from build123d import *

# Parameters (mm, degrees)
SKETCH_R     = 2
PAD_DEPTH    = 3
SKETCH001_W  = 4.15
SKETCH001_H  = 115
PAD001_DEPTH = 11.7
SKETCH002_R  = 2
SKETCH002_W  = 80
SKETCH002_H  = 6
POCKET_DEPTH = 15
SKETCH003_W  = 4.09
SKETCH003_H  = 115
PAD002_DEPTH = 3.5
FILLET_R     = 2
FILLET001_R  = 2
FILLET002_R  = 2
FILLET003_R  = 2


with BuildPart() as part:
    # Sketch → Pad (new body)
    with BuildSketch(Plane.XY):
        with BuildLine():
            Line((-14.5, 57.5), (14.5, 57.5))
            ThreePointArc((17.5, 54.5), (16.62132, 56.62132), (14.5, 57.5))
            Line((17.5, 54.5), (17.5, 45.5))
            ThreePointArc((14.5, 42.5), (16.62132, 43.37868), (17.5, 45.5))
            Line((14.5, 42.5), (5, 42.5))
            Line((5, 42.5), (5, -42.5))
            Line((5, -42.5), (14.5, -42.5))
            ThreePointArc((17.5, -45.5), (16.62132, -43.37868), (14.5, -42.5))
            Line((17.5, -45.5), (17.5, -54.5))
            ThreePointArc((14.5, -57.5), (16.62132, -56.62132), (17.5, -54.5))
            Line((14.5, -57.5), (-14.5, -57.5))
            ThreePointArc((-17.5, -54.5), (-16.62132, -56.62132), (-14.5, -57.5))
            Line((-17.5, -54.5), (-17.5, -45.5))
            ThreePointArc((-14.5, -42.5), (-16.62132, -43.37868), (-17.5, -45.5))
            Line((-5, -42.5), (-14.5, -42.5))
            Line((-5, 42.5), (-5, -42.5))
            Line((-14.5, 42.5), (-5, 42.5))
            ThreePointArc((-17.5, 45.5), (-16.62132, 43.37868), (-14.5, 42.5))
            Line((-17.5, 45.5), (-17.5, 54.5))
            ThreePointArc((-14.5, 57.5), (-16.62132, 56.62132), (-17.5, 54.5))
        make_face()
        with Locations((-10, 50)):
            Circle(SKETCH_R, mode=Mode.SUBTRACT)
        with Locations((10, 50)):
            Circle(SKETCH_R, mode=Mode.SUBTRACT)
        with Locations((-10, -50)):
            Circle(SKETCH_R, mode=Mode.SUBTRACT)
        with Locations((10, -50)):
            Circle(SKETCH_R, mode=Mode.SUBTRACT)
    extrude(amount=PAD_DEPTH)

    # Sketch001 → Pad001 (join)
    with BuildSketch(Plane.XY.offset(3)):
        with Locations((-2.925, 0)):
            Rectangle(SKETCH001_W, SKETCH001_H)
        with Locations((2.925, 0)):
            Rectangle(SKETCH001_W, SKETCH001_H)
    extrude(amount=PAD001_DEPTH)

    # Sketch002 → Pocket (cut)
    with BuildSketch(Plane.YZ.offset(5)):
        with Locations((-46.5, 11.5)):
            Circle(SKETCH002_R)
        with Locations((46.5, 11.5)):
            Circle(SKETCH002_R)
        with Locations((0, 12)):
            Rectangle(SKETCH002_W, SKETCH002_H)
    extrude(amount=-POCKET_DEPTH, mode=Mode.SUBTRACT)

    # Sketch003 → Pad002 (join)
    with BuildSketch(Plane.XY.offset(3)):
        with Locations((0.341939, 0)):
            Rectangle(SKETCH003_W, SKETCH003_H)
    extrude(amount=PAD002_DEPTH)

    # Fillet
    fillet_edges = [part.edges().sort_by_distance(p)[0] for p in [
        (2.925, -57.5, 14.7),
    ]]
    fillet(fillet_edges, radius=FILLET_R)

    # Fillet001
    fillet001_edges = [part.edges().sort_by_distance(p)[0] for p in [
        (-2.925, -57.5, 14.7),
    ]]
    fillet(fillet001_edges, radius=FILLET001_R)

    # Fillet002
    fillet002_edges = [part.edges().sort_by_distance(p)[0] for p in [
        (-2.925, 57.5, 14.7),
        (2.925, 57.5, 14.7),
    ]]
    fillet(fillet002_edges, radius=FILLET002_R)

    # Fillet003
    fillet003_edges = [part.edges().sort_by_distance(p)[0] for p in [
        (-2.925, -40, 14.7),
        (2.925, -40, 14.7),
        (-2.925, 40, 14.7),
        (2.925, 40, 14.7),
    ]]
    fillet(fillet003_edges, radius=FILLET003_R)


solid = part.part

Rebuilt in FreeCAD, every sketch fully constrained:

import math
import FreeCAD as App
import Part
import Sketcher

V = App.Vector


def edges_at(feature, points):
    """Names of the edges that pass closest to the given points."""
    edges = feature.Shape.Edges
    near = lambda p: min(range(len(edges)), key=lambda i: edges[i].distToShape(Part.Vertex(*p))[0])
    return sorted({f"Edge{near(p) + 1}" for p in points})

doc = App.newDocument("Part")
params = doc.addObject("Spreadsheet::Sheet", "Params")
for row, (alias, value) in enumerate([
    ("sketch1_diameter", "4 mm"),
    ("sketch1_radius", "3.000001 mm"),
    ("sketch1_width", "29 mm"),
    ("sketch1_height", "9 mm"),
    ("sketch1_height2", "85 mm"),
    ("pad1_length", "3 mm"),
    ("sketch2_height", "115 mm"),
    ("sketch2_width", "4.15 mm"),
    ("pad2_length", "11.7 mm"),
    ("sketch3_diameter", "4 mm"),
    ("sketch3_width", "80 mm"),
    ("sketch3_height", "6 mm"),
    ("pocket1_length", "15 mm"),
    ("sketch4_height", "115 mm"),
    ("sketch4_width", "4.09 mm"),
    ("pad3_length", "3.5 mm"),
    ("fillet_radius", "2 mm"),
    ("fillet2_radius", "2 mm"),
    ("fillet3_radius", "2 mm"),
    ("fillet4_radius", "2 mm"),
], start=1):
    params.set(f"A{row}", alias)
    params.set(f"B{row}", "=" + value)
    params.setAlias(f"B{row}", alias)

body = doc.addObject("PartDesign::Body", "Body")

sketch1 = body.newObject("Sketcher::SketchObject", "Sketch")
sketch1.AttachmentSupport = (doc.getObject("XY_Plane"), [""])
sketch1.MapMode = "FlatFace"
sketch1.addGeometry(Part.LineSegment(V(14.5, 57.5, 0), V(-14.5, 57.5, 0)), False)
sketch1.addGeometry(Part.ArcOfCircle(Part.Circle(V(-14.5, 54.5, 0), V(0, 0, 1), 3), math.radians(90), math.radians(180)), False)
sketch1.addGeometry(Part.LineSegment(V(-17.5, 54.5, 0), V(-17.5, 45.5, 0)), False)
sketch1.addGeometry(Part.ArcOfCircle(Part.Circle(V(-14.5, 45.5, 0), V(0, 0, 1), 3), math.radians(-180), math.radians(-90)), False)
sketch1.addGeometry(Part.LineSegment(V(-14.5, 42.5, 0), V(-5, 42.5, 0)), False)
sketch1.addGeometry(Part.LineSegment(V(-5, 42.5, 0), V(-5, -42.5, 0)), False)
sketch1.addGeometry(Part.LineSegment(V(-5, -42.5, 0), V(-14.5, -42.5, 0)), False)
sketch1.addGeometry(Part.ArcOfCircle(Part.Circle(V(-14.5, -45.5, 0), V(0, 0, 1), 3), math.radians(90), math.radians(180)), False)
sketch1.addGeometry(Part.LineSegment(V(-17.5, -45.5, 0), V(-17.5, -54.5, 0)), False)
sketch1.addGeometry(Part.ArcOfCircle(Part.Circle(V(-14.5, -54.5, 0), V(0, 0, 1), 3), math.radians(-180), math.radians(-90)), False)
sketch1.addGeometry(Part.LineSegment(V(-14.5, -57.5, 0), V(14.5, -57.5, 0)), False)
sketch1.addGeometry(Part.ArcOfCircle(Part.Circle(V(14.5, -54.5, 0), V(0, 0, 1), 3), math.radians(-90), math.radians(0)), False)
sketch1.addGeometry(Part.LineSegment(V(17.5, -54.5, 0), V(17.5, -45.5, 0)), False)
sketch1.addGeometry(Part.ArcOfCircle(Part.Circle(V(14.5, -45.5, 0), V(0, 0, 1), 3), math.radians(0), math.radians(90)), False)
sketch1.addGeometry(Part.LineSegment(V(14.5, -42.5, 0), V(5, -42.5, 0)), False)
sketch1.addGeometry(Part.LineSegment(V(5, -42.5, 0), V(5, 42.5, 0)), False)
sketch1.addGeometry(Part.LineSegment(V(5, 42.5, 0), V(14.5, 42.5, 0)), False)
sketch1.addGeometry(Part.ArcOfCircle(Part.Circle(V(14.5, 45.5, 0), V(0, 0, 1), 3), math.radians(-90), math.radians(0)), False)
sketch1.addGeometry(Part.LineSegment(V(17.5, 45.5, 0), V(17.5, 54.5, 0)), False)
sketch1.addGeometry(Part.ArcOfCircle(Part.Circle(V(14.5, 54.5, 0), V(0, 0, 1), 3), math.radians(0), math.radians(90)), False)
sketch1.addGeometry(Part.Circle(V(10, -50, 0), V(0, 0, 1), 2), False)
sketch1.addGeometry(Part.Circle(V(-10, -50, 0), V(0, 0, 1), 2), False)
sketch1.addGeometry(Part.Circle(V(10, 50, 0), V(0, 0, 1), 2), False)
sketch1.addGeometry(Part.Circle(V(-10, 50, 0), V(0, 0, 1), 2), False)
sketch1.addConstraint(Sketcher.Constraint("Tangent", 0, 2, 1, 1))
sketch1.addConstraint(Sketcher.Constraint("Tangent", 1, 2, 2, 1))
sketch1.addConstraint(Sketcher.Constraint("Tangent", 2, 2, 3, 1))
sketch1.addConstraint(Sketcher.Constraint("Tangent", 3, 2, 4, 1))
sketch1.addConstraint(Sketcher.Constraint("Coincident", 4, 2, 5, 1))
sketch1.addConstraint(Sketcher.Constraint("Coincident", 5, 2, 6, 1))
sketch1.addConstraint(Sketcher.Constraint("Tangent", 6, 2, 7, 1))
sketch1.addConstraint(Sketcher.Constraint("Tangent", 7, 2, 8, 1))
sketch1.addConstraint(Sketcher.Constraint("Tangent", 8, 2, 9, 1))
sketch1.addConstraint(Sketcher.Constraint("Tangent", 9, 2, 10, 1))
sketch1.addConstraint(Sketcher.Constraint("Tangent", 10, 2, 11, 1))
sketch1.addConstraint(Sketcher.Constraint("Tangent", 11, 2, 12, 1))
sketch1.addConstraint(Sketcher.Constraint("Tangent", 12, 2, 13, 1))
sketch1.addConstraint(Sketcher.Constraint("Tangent", 13, 2, 14, 1))
sketch1.addConstraint(Sketcher.Constraint("Coincident", 14, 2, 15, 1))
sketch1.addConstraint(Sketcher.Constraint("Coincident", 15, 2, 16, 1))
sketch1.addConstraint(Sketcher.Constraint("Tangent", 16, 2, 17, 1))
sketch1.addConstraint(Sketcher.Constraint("Tangent", 17, 2, 18, 1))
sketch1.addConstraint(Sketcher.Constraint("Tangent", 18, 2, 19, 1))
sketch1.addConstraint(Sketcher.Constraint("Tangent", 19, 2, 0, 1))
sketch1.addConstraint(Sketcher.Constraint("Horizontal", 0))
sketch1.addConstraint(Sketcher.Constraint("Vertical", 2))
sketch1.addConstraint(Sketcher.Constraint("Horizontal", 4))
sketch1.addConstraint(Sketcher.Constraint("Vertical", 5))
sketch1.addConstraint(Sketcher.Constraint("Horizontal", 6))
sketch1.addConstraint(Sketcher.Constraint("Vertical", 8))
sketch1.addConstraint(Sketcher.Constraint("Horizontal", 10))
sketch1.addConstraint(Sketcher.Constraint("Vertical", 12))
sketch1.addConstraint(Sketcher.Constraint("Horizontal", 14))
sketch1.addConstraint(Sketcher.Constraint("Vertical", 15))
sketch1.addConstraint(Sketcher.Constraint("Horizontal", 16))
sketch1.addConstraint(Sketcher.Constraint("Vertical", 18))
sketch1.addConstraint(Sketcher.Constraint("Equal", 1, 3))
sketch1.addConstraint(Sketcher.Constraint("Equal", 3, 7))
sketch1.addConstraint(Sketcher.Constraint("Equal", 7, 9))
sketch1.addConstraint(Sketcher.Constraint("Equal", 9, 11))
sketch1.addConstraint(Sketcher.Constraint("Equal", 11, 13))
sketch1.addConstraint(Sketcher.Constraint("Equal", 13, 17))
sketch1.addConstraint(Sketcher.Constraint("Equal", 17, 19))
sketch1.addConstraint(Sketcher.Constraint("Equal", 20, 21))
sketch1.addConstraint(Sketcher.Constraint("Equal", 21, 22))
sketch1.addConstraint(Sketcher.Constraint("Equal", 22, 23))
sketch1.addConstraint(Sketcher.Constraint("Symmetric", 1, 3, 11, 3, -1, 1))
sketch1.addConstraint(Sketcher.Constraint("Symmetric", 7, 3, 17, 3, -1, 1))
sketch1.addConstraint(Sketcher.Constraint("Symmetric", 21, 3, 22, 3, -1, 1))
sketch1.addConstraint(Sketcher.Constraint("Symmetric", 20, 3, 23, 3, -1, 1))
sketch1.addConstraint(Sketcher.Constraint("Symmetric", 4, 2, 14, 2, -1, 1))
sketch1.addConstraint(Sketcher.Constraint("Symmetric", 7, 3, 13, 3, -2))
sketch1.addConstraint(Sketcher.Constraint("Symmetric", 20, 3, 21, 3, -2))
sketch1.addConstraint(Sketcher.Constraint("Diameter", 20, 4.0))
sketch1.addConstraint(Sketcher.Constraint("Radius", 1, 3.000001))
sketch1.addConstraint(Sketcher.Constraint("DistanceX", 0, 2, 0, 1, 29.0))
sketch1.addConstraint(Sketcher.Constraint("DistanceY", 2, 2, 2, 1, 9.0))
sketch1.addConstraint(Sketcher.Constraint("DistanceY", 5, 2, 5, 1, 85.0))
sketch1.addConstraint(Sketcher.Constraint("DistanceX", 4, 1, 4, 2, 9.5))
sketch1.addConstraint(Sketcher.Constraint("DistanceX", -1, 1, 20, 3, 10.0))
sketch1.addConstraint(Sketcher.Constraint("DistanceY", 20, 3, -1, 1, 50.0))
sketch1.setExpression("Constraints[49]", "Params.sketch1_diameter")
sketch1.setExpression("Constraints[50]", "Params.sketch1_radius")
sketch1.setExpression("Constraints[51]", "Params.sketch1_width")
sketch1.setExpression("Constraints[52]", "Params.sketch1_height")
sketch1.setExpression("Constraints[53]", "Params.sketch1_height2")
pad1 = body.newObject("PartDesign::Pad", "Pad")
pad1.Profile = sketch1
pad1.setExpression("Length", "Params.pad1_length")

sketch2 = body.newObject("Sketcher::SketchObject", "Sketch001")
sketch2.AttachmentSupport = (doc.getObject("XY_Plane"), [""])
sketch2.MapMode = "FlatFace"
sketch2.AttachmentOffset = App.Placement(V(0, 0, 3), App.Rotation())
sketch2.addGeometry(Part.LineSegment(V(-5, 57.5, 0), V(-5, -57.5, 0)), False)
sketch2.addGeometry(Part.LineSegment(V(-5, -57.5, 0), V(-0.8, -57.5, 0)), False)
sketch2.addGeometry(Part.LineSegment(V(-0.8, -57.5, 0), V(-0.8, 57.5, 0)), False)
sketch2.addGeometry(Part.LineSegment(V(-0.8, 57.5, 0), V(-5, 57.5, 0)), False)
sketch2.addGeometry(Part.LineSegment(V(0.8, 57.5, 0), V(0.8, -57.5, 0)), False)
sketch2.addGeometry(Part.LineSegment(V(0.8, -57.5, 0), V(5, -57.5, 0)), False)
sketch2.addGeometry(Part.LineSegment(V(5, -57.5, 0), V(5, 57.5, 0)), False)
sketch2.addGeometry(Part.LineSegment(V(5, 57.5, 0), V(0.8, 57.5, 0)), False)
sketch2.addConstraint(Sketcher.Constraint("Coincident", 0, 2, 1, 1))
sketch2.addConstraint(Sketcher.Constraint("Coincident", 1, 2, 2, 1))
sketch2.addConstraint(Sketcher.Constraint("Coincident", 2, 2, 3, 1))
sketch2.addConstraint(Sketcher.Constraint("Coincident", 3, 2, 0, 1))
sketch2.addConstraint(Sketcher.Constraint("Coincident", 4, 2, 5, 1))
sketch2.addConstraint(Sketcher.Constraint("Coincident", 5, 2, 6, 1))
sketch2.addConstraint(Sketcher.Constraint("Coincident", 6, 2, 7, 1))
sketch2.addConstraint(Sketcher.Constraint("Coincident", 7, 2, 4, 1))
sketch2.addConstraint(Sketcher.Constraint("Vertical", 0))
sketch2.addConstraint(Sketcher.Constraint("Horizontal", 1))
sketch2.addConstraint(Sketcher.Constraint("Vertical", 2))
sketch2.addConstraint(Sketcher.Constraint("Horizontal", 3))
sketch2.addConstraint(Sketcher.Constraint("Vertical", 4))
sketch2.addConstraint(Sketcher.Constraint("Horizontal", 5))
sketch2.addConstraint(Sketcher.Constraint("Vertical", 6))
sketch2.addConstraint(Sketcher.Constraint("Horizontal", 7))
sketch2.addConstraint(Sketcher.Constraint("Symmetric", 2, 2, 4, 2, -1, 1))
sketch2.addConstraint(Sketcher.Constraint("Symmetric", 0, 2, 6, 2, -1, 1))
sketch2.addConstraint(Sketcher.Constraint("Horizontal", 1, 2, 4, 2))
sketch2.addConstraint(Sketcher.Constraint("DistanceY", 0, 2, 0, 1, 115.0))
sketch2.addConstraint(Sketcher.Constraint("DistanceX", 0, 2, -1, 1, 5.0))
sketch2.addConstraint(Sketcher.Constraint("DistanceX", 1, 1, 1, 2, 4.15))
sketch2.setExpression("Constraints[19]", "Params.sketch2_height")
sketch2.setExpression("Constraints[21]", "Params.sketch2_width")
pad2 = body.newObject("PartDesign::Pad", "Pad001")
pad2.Profile = sketch2
pad2.setExpression("Length", "Params.pad2_length")

sketch3 = body.newObject("Sketcher::SketchObject", "Sketch002")
sketch3.AttachmentSupport = (doc.getObject("YZ_Plane"), [""])
sketch3.MapMode = "FlatFace"
sketch3.AttachmentOffset = App.Placement(V(0, 0, 5), App.Rotation())
sketch3.addGeometry(Part.Circle(V(-46.5, 11.5, 0), V(0, 0, 1), 2), False)
sketch3.addGeometry(Part.Circle(V(46.5, 11.5, 0), V(0, 0, 1), 2), False)
sketch3.addGeometry(Part.LineSegment(V(-40, 15, 0), V(-40, 9, 0)), False)
sketch3.addGeometry(Part.LineSegment(V(-40, 9, 0), V(40, 9, 0)), False)
sketch3.addGeometry(Part.LineSegment(V(40, 9, 0), V(40, 15, 0)), False)
sketch3.addGeometry(Part.LineSegment(V(40, 15, 0), V(-40, 15, 0)), False)
sketch3.addConstraint(Sketcher.Constraint("Coincident", 2, 2, 3, 1))
sketch3.addConstraint(Sketcher.Constraint("Coincident", 3, 2, 4, 1))
sketch3.addConstraint(Sketcher.Constraint("Coincident", 4, 2, 5, 1))
sketch3.addConstraint(Sketcher.Constraint("Coincident", 5, 2, 2, 1))
sketch3.addConstraint(Sketcher.Constraint("Vertical", 2))
sketch3.addConstraint(Sketcher.Constraint("Horizontal", 3))
sketch3.addConstraint(Sketcher.Constraint("Vertical", 4))
sketch3.addConstraint(Sketcher.Constraint("Horizontal", 5))
sketch3.addConstraint(Sketcher.Constraint("Equal", 0, 1))
sketch3.addConstraint(Sketcher.Constraint("Symmetric", 0, 3, 1, 3, -2))
sketch3.addConstraint(Sketcher.Constraint("Diameter", 0, 4.0))
sketch3.addConstraint(Sketcher.Constraint("DistanceX", 3, 1, 3, 2, 80.0))
sketch3.addConstraint(Sketcher.Constraint("DistanceY", 2, 2, 2, 1, 6.0))
sketch3.addConstraint(Sketcher.Constraint("DistanceX", 2, 2, -1, 1, 40.0))
sketch3.addConstraint(Sketcher.Constraint("DistanceY", -1, 1, 2, 2, 9.0))
sketch3.addConstraint(Sketcher.Constraint("DistanceX", 0, 3, 1, 3, 93.0))
sketch3.addConstraint(Sketcher.Constraint("DistanceY", -1, 1, 0, 3, 11.5))
sketch3.setExpression("Constraints[10]", "Params.sketch3_diameter")
sketch3.setExpression("Constraints[11]", "Params.sketch3_width")
sketch3.setExpression("Constraints[12]", "Params.sketch3_height")
pocket1 = body.newObject("PartDesign::Pocket", "Pocket")
pocket1.Profile = sketch3
pocket1.setExpression("Length", "Params.pocket1_length")

sketch4 = body.newObject("Sketcher::SketchObject", "Sketch003")
sketch4.AttachmentSupport = (doc.getObject("XY_Plane"), [""])
sketch4.MapMode = "FlatFace"
sketch4.AttachmentOffset = App.Placement(V(0, 0, 3), App.Rotation())
sketch4.addGeometry(Part.LineSegment(V(-1.7, 57.5, 0), V(-1.7, -57.5, 0)), False)
sketch4.addGeometry(Part.LineSegment(V(-1.7, -57.5, 0), V(2.4, -57.5, 0)), False)
sketch4.addGeometry(Part.LineSegment(V(2.4, -57.5, 0), V(2.4, 57.5, 0)), False)
sketch4.addGeometry(Part.LineSegment(V(2.4, 57.5, 0), V(-1.7, 57.5, 0)), False)
sketch4.addConstraint(Sketcher.Constraint("Coincident", 0, 2, 1, 1))
sketch4.addConstraint(Sketcher.Constraint("Coincident", 1, 2, 2, 1))
sketch4.addConstraint(Sketcher.Constraint("Coincident", 2, 2, 3, 1))
sketch4.addConstraint(Sketcher.Constraint("Coincident", 3, 2, 0, 1))
sketch4.addConstraint(Sketcher.Constraint("Vertical", 0))
sketch4.addConstraint(Sketcher.Constraint("Horizontal", 1))
sketch4.addConstraint(Sketcher.Constraint("Vertical", 2))
sketch4.addConstraint(Sketcher.Constraint("Horizontal", 3))
sketch4.addConstraint(Sketcher.Constraint("DistanceY", 0, 2, 0, 1, 115.0))
sketch4.addConstraint(Sketcher.Constraint("DistanceX", 1, 1, 1, 2, 4.09))
sketch4.addConstraint(Sketcher.Constraint("DistanceY", 0, 2, -1, 1, 57.5))
sketch4.addConstraint(Sketcher.Constraint("DistanceX", 0, 2, -1, 1, 1.703061))
sketch4.setExpression("Constraints[8]", "Params.sketch4_height")
sketch4.setExpression("Constraints[9]", "Params.sketch4_width")
pad3 = body.newObject("PartDesign::Pad", "Pad002")
pad3.Profile = sketch4
pad3.setExpression("Length", "Params.pad3_length")
doc.recompute()

fillet = body.newObject("PartDesign::Fillet", "Fillet")
fillet.Base = (pad3, edges_at(pad3, [(2.925, -57.5, 14.7)]))
fillet.setExpression("Radius", "Params.fillet_radius")
doc.recompute()

fillet2 = body.newObject("PartDesign::Fillet", "Fillet001")
fillet2.Base = (fillet, edges_at(fillet, [(-2.925, -57.5, 14.7)]))
fillet2.setExpression("Radius", "Params.fillet2_radius")
doc.recompute()

fillet3 = body.newObject("PartDesign::Fillet", "Fillet002")
fillet3.Base = (fillet2, edges_at(fillet2, [(-2.925, 57.5, 14.7), (2.925, 57.5, 14.7)]))
fillet3.setExpression("Radius", "Params.fillet3_radius")
doc.recompute()

fillet4 = body.newObject("PartDesign::Fillet", "Fillet003")
fillet4.Base = (fillet3, edges_at(fillet3, [
    (-2.925, -40, 14.7),
    (2.925, -40, 14.7),
    (-2.925, 40, 14.7),
    (2.925, 40, 14.7),
]))
fillet4.setExpression("Radius", "Params.fillet4_radius")

doc.recompute()
